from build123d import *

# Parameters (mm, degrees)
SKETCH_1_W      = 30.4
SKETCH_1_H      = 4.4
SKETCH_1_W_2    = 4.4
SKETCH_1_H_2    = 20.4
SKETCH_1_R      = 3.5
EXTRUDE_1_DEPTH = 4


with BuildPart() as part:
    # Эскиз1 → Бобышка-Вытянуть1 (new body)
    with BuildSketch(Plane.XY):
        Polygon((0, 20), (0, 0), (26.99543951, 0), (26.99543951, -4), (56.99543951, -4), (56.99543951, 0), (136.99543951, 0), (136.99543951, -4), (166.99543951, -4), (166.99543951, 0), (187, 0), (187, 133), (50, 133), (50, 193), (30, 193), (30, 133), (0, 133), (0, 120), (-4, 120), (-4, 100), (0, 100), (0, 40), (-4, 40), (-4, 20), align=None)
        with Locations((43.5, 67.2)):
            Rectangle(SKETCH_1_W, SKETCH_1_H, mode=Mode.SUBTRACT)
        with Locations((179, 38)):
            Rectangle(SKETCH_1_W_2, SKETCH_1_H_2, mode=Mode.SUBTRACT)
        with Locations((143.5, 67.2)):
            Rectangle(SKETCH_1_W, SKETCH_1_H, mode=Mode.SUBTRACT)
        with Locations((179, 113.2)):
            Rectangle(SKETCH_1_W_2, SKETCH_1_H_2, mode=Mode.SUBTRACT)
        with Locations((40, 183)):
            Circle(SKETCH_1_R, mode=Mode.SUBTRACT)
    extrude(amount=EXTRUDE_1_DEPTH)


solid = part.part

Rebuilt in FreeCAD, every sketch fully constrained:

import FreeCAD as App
import Part
import Sketcher

V = App.Vector


def add_polygon(sketch, points):
    """Adds a closed chain of lines whose ends are joined by coincident constraints."""
    first, n = sketch.GeometryCount, len(points)
    for a, b in zip(points, points[1:] + points[:1]):
        sketch.addGeometry(Part.LineSegment(App.Vector(*a, 0), App.Vector(*b, 0)), False)
    for i in range(n):
        sketch.addConstraint(Sketcher.Constraint("Coincident", first + i, 2, first + (i + 1) % n, 1))

doc = App.newDocument("Part")
body = doc.addObject("PartDesign::Body", "Body")

sketch1 = body.newObject("Sketcher::SketchObject", "Sketch")
sketch1.AttachmentSupport = (doc.getObject("XY_Plane"), [""])
sketch1.MapMode = "FlatFace"
add_polygon(sketch1, [(0, 20), (0, 0), (26.99544, 0), (26.99544, -4), (56.99544, -4), (56.99544, 0), (136.99544, 0), (136.99544, -4), (166.99544, -4), (166.99544, 0), (187, 0), (187, 133), (50, 133), (50, 193), (30, 193), (30, 133), (0, 133), (0, 120), (-4, 120), (-4, 100), (0, 100), (0, 40), (-4, 40), (-4, 20)])
add_polygon(sketch1, [(58.7, 65), (28.3, 65), (28.3, 69.4), (58.7, 69.4)])
add_polygon(sketch1, [(181.2, 27.8), (176.8, 27.8), (176.8, 48.2), (181.2, 48.2)])
add_polygon(sketch1, [(158.7, 65), (128.3, 65), (128.3, 69.4), (158.7, 69.4)])
sketch1.addGeometry(Part.Circle(V(40, 183, 0), V(0, 0, 1), 3.5), False)
add_polygon(sketch1, [(181.2, 103), (176.8, 103), (176.8, 123.4), (181.2, 123.4)])
sketch1.addConstraint([
    Sketcher.Constraint("Vertical", 0),
    Sketcher.Constraint("Horizontal", 1),
    Sketcher.Constraint("Vertical", 2),
    Sketcher.Constraint("Horizontal", 3),
    Sketcher.Constraint("Vertical", 4),
    Sketcher.Constraint("Horizontal", 5),
    Sketcher.Constraint("Vertical", 6),
    Sketcher.Constraint("Horizontal", 7),
    Sketcher.Constraint("Vertical", 8),
    Sketcher.Constraint("Horizontal", 9),
    Sketcher.Constraint("Vertical", 10),
    Sketcher.Constraint("Horizontal", 11),
    Sketcher.Constraint("Vertical", 12),
    Sketcher.Constraint("Horizontal", 13),
    Sketcher.Constraint("Vertical", 14),
    Sketcher.Constraint("Horizontal", 15),
    Sketcher.Constraint("Vertical", 16),
    Sketcher.Constraint("Horizontal", 17),
    Sketcher.Constraint("Vertical", 18),
    Sketcher.Constraint("Horizontal", 19),
    Sketcher.Constraint("Vertical", 20),
    Sketcher.Constraint("Horizontal", 21),
    Sketcher.Constraint("Vertical", 22),
    Sketcher.Constraint("Horizontal", 23),
    Sketcher.Constraint("Horizontal", 24),
    Sketcher.Constraint("Vertical", 25),
    Sketcher.Constraint("Horizontal", 26),
    Sketcher.Constraint("Vertical", 27),
    Sketcher.Constraint("Horizontal", 28),
    Sketcher.Constraint("Vertical", 29),
    Sketcher.Constraint("Horizontal", 30),
    Sketcher.Constraint("Vertical", 31),
    Sketcher.Constraint("Horizontal", 32),
    Sketcher.Constraint("Vertical", 33),
    Sketcher.Constraint("Horizontal", 34),
    Sketcher.Constraint("Vertical", 35),
    Sketcher.Constraint("Horizontal", 37),
    Sketcher.Constraint("Vertical", 38),
    Sketcher.Constraint("Horizontal", 39),
    Sketcher.Constraint("Vertical", 40),
    Sketcher.Constraint("Coincident", 0, 2, -1, 1),
    Sketcher.Constraint("PointOnObject", 4, 2, -1),
    Sketcher.Constraint("PointOnObject", 8, 2, -1),
    Sketcher.Constraint("PointOnObject", 15, 2, -2),
    Sketcher.Constraint("PointOnObject", 19, 2, -2),
    Sketcher.Constraint("Horizontal", 3, 2, 6, 2),
    Sketcher.Constraint("Horizontal", 11, 2, 14, 2),
    Sketcher.Constraint("Horizontal", 27, 2, 32, 2),
    Sketcher.Constraint("Horizontal", 26, 2, 33, 2),
    Sketcher.Constraint("Vertical", 18, 2, 21, 2),
    Sketcher.Constraint("Vertical", 29, 2, 37, 2),
    Sketcher.Constraint("Vertical", 31, 2, 39, 2),
    Sketcher.Constraint("Equal", 3, 7),
    Sketcher.Constraint("Equal", 7, 15),
    Sketcher.Constraint("Equal", 26, 32),
    Sketcher.Constraint("Equal", 13, 0),
    Sketcher.Constraint("Equal", 23, 2),
    Sketcher.Constraint("Equal", 0, 18),
    Sketcher.Constraint("Equal", 14, 20),
    Sketcher.Constraint("Equal", 18, 22),
    Sketcher.Constraint("Equal", 39, 25),
    Sketcher.Constraint("Equal", 31, 38),
    Sketcher.Constraint("Diameter", 36, 7.0),
    Sketcher.Constraint("DistanceX", 3, 1, 3, 2, 30.0),
    Sketcher.Constraint("DistanceX", 5, 1, 5, 2, 80.0),
    Sketcher.Constraint("DistanceX", 11, 2, 11, 1, 137.0),
    Sketcher.Constraint("DistanceX", 13, 2, 13, 1, 20.0),
    Sketcher.Constraint("DistanceX", 17, 2, 17, 1, 4.0),
    Sketcher.Constraint("DistanceY", 10, 1, 10, 2, 133.0),
    Sketcher.Constraint("DistanceY", 12, 1, 12, 2, 60.0),
    Sketcher.Constraint("DistanceX", 24, 2, 24, 1, 30.4),
    Sketcher.Constraint("DistanceX", 28, 2, 28, 1, 4.4),
    Sketcher.Constraint("DistanceY", 29, 1, 29, 2, 20.4),
    Sketcher.Constraint("DistanceX", -1, 1, 36, 3, 40.0),
    Sketcher.Constraint("DistanceY", -1, 1, 36, 3, 183.0),
    Sketcher.Constraint("DistanceY", -1, 1, 24, 2, 65.0),
    Sketcher.Constraint("DistanceY", -1, 1, 37, 2, 103.0),
    Sketcher.Constraint("DistanceX", -1, 1, 24, 2, 28.3),
    Sketcher.Constraint("DistanceX", -1, 1, 28, 2, 176.8),
    Sketcher.Constraint("DistanceY", -1, 1, 28, 2, 27.8),
    Sketcher.Constraint("DistanceX", -1, 1, 32, 2, 128.3),
    Sketcher.Constraint("DistanceX", 1, 1, 1, 2, 26.99544),
])
pad1 = body.newObject("PartDesign::Pad", "Pad")
pad1.Profile = sketch1
pad1.Length = 4

doc.recompute()
